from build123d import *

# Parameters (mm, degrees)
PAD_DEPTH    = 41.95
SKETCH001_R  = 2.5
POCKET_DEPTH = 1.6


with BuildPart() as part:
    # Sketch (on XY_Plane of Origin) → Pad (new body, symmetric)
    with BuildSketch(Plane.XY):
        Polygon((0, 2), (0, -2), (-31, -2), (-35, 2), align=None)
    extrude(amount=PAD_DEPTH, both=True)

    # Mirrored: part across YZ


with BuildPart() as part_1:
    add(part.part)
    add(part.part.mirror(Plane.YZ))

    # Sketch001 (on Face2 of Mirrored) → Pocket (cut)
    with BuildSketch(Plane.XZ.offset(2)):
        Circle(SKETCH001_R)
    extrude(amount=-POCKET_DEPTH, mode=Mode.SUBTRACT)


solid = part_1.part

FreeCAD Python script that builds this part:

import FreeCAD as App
import Part
import Sketcher
from FreeCAD import Vector
Q = App.Units.Quantity


def add_polygon(sketch, points):
    """Adds a closed chain of lines whose ends are joined by coincident constraints."""
    first, n = sketch.GeometryCount, len(points)
    for a, b in zip(points, points[1:] + points[:1]):
        sketch.addGeometry(Part.LineSegment(App.Vector(*a, 0), App.Vector(*b, 0)), False)
    for i in range(n):
        sketch.addConstraint(Sketcher.Constraint("Coincident", first + i, 2, first + (i + 1) % n, 1))

doc = App.newDocument("Part")
body = doc.addObject("PartDesign::Body", "Body")

# Sketch on XY plane
sketch1 = doc.addObject("Sketcher::SketchObject", "Sketch")
body.addObject(sketch1)
sketch1.AttachmentSupport = (doc.XY_Plane, [""])
sketch1.MapMode = "FlatFace"
add_polygon(sketch1, [(0, -2), (0, 2), (-35, 2), (-31, -2)])  # lines 0-3
sketch1.addConstraint(Sketcher.Constraint("Vertical", 0))
sketch1.addConstraint(Sketcher.Constraint("Horizontal", 1))
sketch1.addConstraint(Sketcher.Constraint("Horizontal", 3))
sketch1.addConstraint(Sketcher.Constraint("Symmetric", 0, 2, 3, 2, -1, 1))
sketch1.addConstraint(Sketcher.Constraint("DistanceX", 1, 2, 1, 1, Q("35 mm")))
sketch1.addConstraint(Sketcher.Constraint("DistanceX", 3, 1, 3, 2, Q("31 mm")))
sketch1.addConstraint(Sketcher.Constraint("DistanceY", 0, 1, 0, 2, Q("4 mm")))
pad1 = doc.addObject("PartDesign::Pad", "Pad")
body.addObject(pad1)
pad1.Profile = sketch1
pad1.Length = 83.9
pad1.Midplane = True
body2 = doc.addObject("PartDesign::Body", "Body001")
doc.recompute()

body2.BaseFeature = body
doc.recompute()

mirroring = doc.addObject("Part::Mirroring", "Mirroring")
mirroring.Source = body
mirroring.Base = Vector(0, 0, 0)
mirroring.Normal = Vector(1, 0, 0)
body3 = doc.addObject("PartDesign::Body", "Body002")
body3.BaseFeature = mirroring
boolean = doc.addObject("PartDesign::Boolean", "Boolean")
body2.addObject(boolean)
boolean.Type = "Fuse"
boolean.addObjects([body3])
doc.recompute()

# Sketch on XZ plane
sketch2 = doc.addObject("Sketcher::SketchObject", "Sketch001")
body2.addObject(sketch2)
sketch2.AttachmentSupport = (doc.getObject("XZ_Plane001"), [""])
sketch2.MapMode = "FlatFace"
sketch2.AttachmentOffset = App.Placement(Vector(0, 0, 2), App.Rotation())
sketch2.addGeometry(Part.Circle(Vector(0, 0, 0), Vector(0, 0, 1), 2.5), False)
sketch2.addConstraint(Sketcher.Constraint("Coincident", 0, 3, -1, 1))
sketch2.addConstraint(Sketcher.Constraint("Diameter", 0, Q("5 mm")))
pocket1 = doc.addObject("PartDesign::Pocket", "Pocket")
body2.addObject(pocket1)
pocket1.Profile = sketch2
pocket1.Length = 1.6
mirroring.Visibility = False

doc.recompute()
